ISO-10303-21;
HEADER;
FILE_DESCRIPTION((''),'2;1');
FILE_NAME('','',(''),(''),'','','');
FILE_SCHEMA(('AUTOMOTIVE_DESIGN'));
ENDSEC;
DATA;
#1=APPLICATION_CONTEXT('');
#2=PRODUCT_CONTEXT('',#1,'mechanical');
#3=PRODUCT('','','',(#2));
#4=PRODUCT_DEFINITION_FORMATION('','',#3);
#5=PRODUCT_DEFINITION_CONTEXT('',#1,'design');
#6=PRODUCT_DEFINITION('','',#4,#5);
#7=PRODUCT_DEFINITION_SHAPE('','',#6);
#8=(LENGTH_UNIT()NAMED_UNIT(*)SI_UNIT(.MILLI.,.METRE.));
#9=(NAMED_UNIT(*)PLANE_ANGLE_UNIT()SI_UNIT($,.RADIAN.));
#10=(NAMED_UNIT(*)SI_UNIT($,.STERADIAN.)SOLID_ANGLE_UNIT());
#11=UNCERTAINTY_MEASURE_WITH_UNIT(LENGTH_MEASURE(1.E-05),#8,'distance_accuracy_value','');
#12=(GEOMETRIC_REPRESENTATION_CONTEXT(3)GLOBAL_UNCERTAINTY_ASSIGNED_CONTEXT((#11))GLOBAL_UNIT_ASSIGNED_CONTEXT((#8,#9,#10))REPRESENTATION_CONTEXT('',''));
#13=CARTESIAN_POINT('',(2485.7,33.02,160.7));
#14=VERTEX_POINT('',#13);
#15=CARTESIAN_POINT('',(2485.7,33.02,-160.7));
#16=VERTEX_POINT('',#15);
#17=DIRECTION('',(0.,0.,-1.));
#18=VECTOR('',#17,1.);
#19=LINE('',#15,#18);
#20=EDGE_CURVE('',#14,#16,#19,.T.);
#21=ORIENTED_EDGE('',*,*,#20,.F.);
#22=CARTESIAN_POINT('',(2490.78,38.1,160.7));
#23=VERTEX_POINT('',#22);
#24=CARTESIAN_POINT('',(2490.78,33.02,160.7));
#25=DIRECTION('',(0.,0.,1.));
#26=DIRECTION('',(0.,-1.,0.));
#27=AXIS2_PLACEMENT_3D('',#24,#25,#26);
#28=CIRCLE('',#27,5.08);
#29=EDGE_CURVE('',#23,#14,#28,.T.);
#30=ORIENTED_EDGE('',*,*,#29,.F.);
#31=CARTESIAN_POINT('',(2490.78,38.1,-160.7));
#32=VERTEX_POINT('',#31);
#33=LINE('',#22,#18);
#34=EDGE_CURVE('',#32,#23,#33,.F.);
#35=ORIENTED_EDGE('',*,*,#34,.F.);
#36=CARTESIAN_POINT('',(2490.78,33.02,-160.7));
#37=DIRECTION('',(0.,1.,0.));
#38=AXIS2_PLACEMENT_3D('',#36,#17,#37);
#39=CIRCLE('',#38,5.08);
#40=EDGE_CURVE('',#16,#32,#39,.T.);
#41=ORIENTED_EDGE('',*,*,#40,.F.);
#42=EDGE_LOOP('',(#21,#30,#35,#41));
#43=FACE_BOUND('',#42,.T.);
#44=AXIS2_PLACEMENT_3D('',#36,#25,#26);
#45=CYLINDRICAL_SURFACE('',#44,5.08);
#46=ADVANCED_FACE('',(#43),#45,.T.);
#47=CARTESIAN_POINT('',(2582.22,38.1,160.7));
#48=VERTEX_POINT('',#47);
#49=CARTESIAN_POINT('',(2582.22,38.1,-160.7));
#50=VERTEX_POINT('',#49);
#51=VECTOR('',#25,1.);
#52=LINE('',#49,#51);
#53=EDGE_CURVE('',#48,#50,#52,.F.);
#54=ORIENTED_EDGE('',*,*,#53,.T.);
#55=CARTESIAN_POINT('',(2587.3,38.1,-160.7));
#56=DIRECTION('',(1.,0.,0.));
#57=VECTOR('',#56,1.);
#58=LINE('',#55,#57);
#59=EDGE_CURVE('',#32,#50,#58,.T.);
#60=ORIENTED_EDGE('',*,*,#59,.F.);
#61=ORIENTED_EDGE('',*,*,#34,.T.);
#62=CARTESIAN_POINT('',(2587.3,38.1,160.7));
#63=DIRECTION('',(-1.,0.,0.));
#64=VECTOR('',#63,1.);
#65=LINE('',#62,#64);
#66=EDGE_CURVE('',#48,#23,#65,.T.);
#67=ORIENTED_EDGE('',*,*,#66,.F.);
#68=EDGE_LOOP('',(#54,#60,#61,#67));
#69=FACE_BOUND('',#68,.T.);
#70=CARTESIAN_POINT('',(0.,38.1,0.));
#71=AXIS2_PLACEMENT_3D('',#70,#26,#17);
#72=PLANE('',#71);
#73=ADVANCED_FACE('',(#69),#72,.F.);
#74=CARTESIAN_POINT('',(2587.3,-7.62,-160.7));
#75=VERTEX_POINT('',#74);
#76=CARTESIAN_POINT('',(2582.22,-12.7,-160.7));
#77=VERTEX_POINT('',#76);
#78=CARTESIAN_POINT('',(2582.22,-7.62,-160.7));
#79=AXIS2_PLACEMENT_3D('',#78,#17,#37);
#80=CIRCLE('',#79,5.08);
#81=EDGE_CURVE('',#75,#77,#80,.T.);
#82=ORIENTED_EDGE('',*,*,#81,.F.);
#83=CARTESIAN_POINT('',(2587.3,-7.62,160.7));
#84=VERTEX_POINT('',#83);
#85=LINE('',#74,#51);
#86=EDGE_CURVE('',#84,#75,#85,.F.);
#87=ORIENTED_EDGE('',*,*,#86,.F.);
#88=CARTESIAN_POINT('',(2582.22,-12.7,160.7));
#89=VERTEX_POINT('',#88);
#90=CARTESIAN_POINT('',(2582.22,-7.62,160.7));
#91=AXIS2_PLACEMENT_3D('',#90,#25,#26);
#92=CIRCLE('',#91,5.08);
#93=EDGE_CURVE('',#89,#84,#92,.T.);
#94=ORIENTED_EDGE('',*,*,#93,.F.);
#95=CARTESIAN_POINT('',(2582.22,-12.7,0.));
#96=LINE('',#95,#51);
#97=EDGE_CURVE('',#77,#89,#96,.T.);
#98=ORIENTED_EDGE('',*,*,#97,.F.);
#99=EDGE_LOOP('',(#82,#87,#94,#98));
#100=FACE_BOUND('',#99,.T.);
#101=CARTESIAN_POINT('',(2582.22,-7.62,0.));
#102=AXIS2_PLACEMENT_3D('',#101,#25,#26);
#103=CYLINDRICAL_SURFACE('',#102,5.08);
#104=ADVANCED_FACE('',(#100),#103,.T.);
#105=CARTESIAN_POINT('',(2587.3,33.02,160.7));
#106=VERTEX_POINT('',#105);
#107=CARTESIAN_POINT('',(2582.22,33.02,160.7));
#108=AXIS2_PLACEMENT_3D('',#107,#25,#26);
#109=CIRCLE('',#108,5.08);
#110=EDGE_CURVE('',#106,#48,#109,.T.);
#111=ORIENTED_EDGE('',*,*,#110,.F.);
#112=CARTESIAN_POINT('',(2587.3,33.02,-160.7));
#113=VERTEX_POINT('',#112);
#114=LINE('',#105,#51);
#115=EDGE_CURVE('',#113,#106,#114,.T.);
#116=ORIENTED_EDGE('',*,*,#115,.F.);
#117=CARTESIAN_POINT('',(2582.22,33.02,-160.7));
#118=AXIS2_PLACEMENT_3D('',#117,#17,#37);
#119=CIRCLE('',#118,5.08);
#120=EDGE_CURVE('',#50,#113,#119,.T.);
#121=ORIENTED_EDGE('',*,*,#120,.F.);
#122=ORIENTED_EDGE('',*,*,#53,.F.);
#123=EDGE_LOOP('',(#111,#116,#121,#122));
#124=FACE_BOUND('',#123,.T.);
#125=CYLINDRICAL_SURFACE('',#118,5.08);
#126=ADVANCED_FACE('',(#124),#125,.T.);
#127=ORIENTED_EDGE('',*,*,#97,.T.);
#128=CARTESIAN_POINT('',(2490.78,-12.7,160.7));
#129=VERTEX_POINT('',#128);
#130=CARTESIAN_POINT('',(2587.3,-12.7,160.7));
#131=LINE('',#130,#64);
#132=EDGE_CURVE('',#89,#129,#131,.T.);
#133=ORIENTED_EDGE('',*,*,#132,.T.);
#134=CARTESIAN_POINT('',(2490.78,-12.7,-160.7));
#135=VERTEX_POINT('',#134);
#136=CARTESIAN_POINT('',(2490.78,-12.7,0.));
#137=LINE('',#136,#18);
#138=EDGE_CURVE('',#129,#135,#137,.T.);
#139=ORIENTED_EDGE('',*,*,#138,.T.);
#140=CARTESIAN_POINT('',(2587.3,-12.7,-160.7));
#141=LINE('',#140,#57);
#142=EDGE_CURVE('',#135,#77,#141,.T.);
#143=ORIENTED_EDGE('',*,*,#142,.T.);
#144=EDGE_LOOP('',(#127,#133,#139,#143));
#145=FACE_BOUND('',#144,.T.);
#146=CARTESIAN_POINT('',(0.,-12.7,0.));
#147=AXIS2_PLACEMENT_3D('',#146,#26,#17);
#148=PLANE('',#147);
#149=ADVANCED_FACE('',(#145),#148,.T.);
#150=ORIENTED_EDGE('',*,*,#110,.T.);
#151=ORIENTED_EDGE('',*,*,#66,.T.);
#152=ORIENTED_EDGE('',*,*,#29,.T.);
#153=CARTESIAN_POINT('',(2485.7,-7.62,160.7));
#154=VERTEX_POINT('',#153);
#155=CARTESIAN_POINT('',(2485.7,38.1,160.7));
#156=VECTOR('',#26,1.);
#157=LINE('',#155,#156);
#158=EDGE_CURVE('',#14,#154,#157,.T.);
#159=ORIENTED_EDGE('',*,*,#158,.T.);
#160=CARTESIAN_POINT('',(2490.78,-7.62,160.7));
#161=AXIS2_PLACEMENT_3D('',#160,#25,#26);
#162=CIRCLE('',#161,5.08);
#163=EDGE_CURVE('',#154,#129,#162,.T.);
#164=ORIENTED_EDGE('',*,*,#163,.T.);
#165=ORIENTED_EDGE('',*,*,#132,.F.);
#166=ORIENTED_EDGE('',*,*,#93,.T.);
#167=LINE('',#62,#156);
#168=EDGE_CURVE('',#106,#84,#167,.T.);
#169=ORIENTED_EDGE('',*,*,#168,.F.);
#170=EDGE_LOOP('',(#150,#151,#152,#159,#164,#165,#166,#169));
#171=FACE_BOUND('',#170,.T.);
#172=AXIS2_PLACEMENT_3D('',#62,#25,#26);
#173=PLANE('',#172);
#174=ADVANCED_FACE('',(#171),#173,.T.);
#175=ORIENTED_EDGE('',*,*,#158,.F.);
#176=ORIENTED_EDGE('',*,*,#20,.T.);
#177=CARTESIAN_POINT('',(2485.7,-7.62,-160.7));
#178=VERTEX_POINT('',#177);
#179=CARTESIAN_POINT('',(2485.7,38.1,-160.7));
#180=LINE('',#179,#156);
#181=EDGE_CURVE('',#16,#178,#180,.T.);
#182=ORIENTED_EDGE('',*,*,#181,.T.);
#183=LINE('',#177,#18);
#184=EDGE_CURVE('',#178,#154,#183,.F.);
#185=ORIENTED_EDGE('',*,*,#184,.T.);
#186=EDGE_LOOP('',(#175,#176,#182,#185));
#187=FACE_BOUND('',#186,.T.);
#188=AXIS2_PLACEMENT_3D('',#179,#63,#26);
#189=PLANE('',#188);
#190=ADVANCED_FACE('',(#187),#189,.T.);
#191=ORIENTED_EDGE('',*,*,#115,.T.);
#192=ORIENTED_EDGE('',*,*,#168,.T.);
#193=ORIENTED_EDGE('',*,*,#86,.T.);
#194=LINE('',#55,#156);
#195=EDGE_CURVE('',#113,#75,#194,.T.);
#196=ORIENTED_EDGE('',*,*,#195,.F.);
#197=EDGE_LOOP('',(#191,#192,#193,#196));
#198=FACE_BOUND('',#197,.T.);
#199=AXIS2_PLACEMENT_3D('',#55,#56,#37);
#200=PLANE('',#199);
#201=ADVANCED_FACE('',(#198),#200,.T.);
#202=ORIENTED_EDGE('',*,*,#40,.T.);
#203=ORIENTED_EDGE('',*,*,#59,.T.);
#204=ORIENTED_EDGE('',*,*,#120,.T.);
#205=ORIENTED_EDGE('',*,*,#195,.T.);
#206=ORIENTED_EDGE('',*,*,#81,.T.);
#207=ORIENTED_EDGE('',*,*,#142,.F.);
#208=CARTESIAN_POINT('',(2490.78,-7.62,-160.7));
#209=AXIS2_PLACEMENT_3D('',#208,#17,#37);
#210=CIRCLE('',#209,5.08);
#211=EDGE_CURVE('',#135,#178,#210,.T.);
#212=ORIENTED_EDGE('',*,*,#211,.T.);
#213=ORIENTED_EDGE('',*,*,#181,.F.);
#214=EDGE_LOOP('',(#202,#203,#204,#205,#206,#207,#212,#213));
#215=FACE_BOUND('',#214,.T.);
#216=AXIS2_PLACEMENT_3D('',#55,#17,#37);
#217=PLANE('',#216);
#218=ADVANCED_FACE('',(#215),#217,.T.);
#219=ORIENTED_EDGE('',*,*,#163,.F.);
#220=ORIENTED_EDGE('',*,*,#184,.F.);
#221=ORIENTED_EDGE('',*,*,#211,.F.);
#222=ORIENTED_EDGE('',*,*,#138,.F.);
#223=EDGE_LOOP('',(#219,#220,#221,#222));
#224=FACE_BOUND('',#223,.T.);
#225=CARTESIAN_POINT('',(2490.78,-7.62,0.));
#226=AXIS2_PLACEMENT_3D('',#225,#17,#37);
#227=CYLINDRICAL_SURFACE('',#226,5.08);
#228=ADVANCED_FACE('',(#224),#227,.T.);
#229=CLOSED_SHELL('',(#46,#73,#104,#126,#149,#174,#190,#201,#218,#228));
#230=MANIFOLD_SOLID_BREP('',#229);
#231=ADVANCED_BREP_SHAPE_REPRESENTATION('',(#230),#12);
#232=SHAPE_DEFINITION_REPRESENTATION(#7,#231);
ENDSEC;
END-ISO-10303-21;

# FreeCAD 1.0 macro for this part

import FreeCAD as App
import Part
import Sketcher

V = App.Vector
Q = App.Units.Quantity


def edges_at(feature, points):
    """Names of the edges that pass closest to the given points."""
    edges = feature.Shape.Edges
    near = lambda p: min(range(len(edges)), key=lambda i: edges[i].distToShape(Part.Vertex(*p))[0])
    return sorted({f"Edge{near(p) + 1}" for p in points})

doc = App.newDocument("Part")
body = doc.addObject("PartDesign::Body", "Body")

# Sketch on XZ plane
sketch1 = body.newObject("Sketcher::SketchObject", "Sketch")
sketch1.AttachmentSupport = (doc.getObject("XZ_Plane"), [""])
sketch1.MapMode = "FlatFace"
sketch1.AttachmentOffset = App.Placement(V(0, 0, 0.5 * 25.4), App.Rotation())
sketch1.addGeometry(Part.LineSegment(V(2587.3, -160.7, 0), V(2587.3, 160.7, 0)), False)
sketch1.addGeometry(Part.LineSegment(V(2587.3, 160.7, 0), V(2485.7, 160.7, 0)), False)
sketch1.addGeometry(Part.LineSegment(V(2485.7, 160.7, 0), V(2485.7, -160.7, 0)), False)
sketch1.addGeometry(Part.LineSegment(V(2485.7, -160.7, 0), V(2587.3, -160.7, 0)), False)
sketch1.addConstraint(Sketcher.Constraint("Coincident", 0, 2, 1, 1))
sketch1.addConstraint(Sketcher.Constraint("Coincident", 1, 2, 2, 1))
sketch1.addConstraint(Sketcher.Constraint("Coincident", 2, 2, 3, 1))
sketch1.addConstraint(Sketcher.Constraint("Coincident", 3, 2, 0, 1))
sketch1.addConstraint(Sketcher.Constraint("Vertical", 0))
sketch1.addConstraint(Sketcher.Constraint("Horizontal", 1))
sketch1.addConstraint(Sketcher.Constraint("Vertical", 2))
sketch1.addConstraint(Sketcher.Constraint("Horizontal", 3))
sketch1.addConstraint(Sketcher.Constraint("DistanceX", 1, 2, 1, 1, Q("4 in")))
sketch1.addConstraint(Sketcher.Constraint("DistanceY", 0, 1, 0, 2, Q("321.4 mm")))
sketch1.addConstraint(Sketcher.Constraint("DistanceX", -1, 1, 0, 2, Q("2587.3 mm")))
sketch1.addConstraint(Sketcher.Constraint("DistanceY", -1, 1, 0, 2, Q("160.7 mm")))
pad1 = body.newObject("PartDesign::Pad", "Pad")
pad1.Profile = sketch1
pad1.Length = Q("2 in")
pad1.Reversed = True
doc.recompute()

fillet = body.newObject("PartDesign::Fillet", "Fillet")
fillet.Base = (pad1, edges_at(pad1, [
    (2485.7, 38.1, 0),
    (2587.3, 38.1, 0),
    (2485.7, -12.7, 0),
    (2587.3, -12.7, 0),
]))
fillet.Radius = Q("0.2 in")

doc.recompute()
